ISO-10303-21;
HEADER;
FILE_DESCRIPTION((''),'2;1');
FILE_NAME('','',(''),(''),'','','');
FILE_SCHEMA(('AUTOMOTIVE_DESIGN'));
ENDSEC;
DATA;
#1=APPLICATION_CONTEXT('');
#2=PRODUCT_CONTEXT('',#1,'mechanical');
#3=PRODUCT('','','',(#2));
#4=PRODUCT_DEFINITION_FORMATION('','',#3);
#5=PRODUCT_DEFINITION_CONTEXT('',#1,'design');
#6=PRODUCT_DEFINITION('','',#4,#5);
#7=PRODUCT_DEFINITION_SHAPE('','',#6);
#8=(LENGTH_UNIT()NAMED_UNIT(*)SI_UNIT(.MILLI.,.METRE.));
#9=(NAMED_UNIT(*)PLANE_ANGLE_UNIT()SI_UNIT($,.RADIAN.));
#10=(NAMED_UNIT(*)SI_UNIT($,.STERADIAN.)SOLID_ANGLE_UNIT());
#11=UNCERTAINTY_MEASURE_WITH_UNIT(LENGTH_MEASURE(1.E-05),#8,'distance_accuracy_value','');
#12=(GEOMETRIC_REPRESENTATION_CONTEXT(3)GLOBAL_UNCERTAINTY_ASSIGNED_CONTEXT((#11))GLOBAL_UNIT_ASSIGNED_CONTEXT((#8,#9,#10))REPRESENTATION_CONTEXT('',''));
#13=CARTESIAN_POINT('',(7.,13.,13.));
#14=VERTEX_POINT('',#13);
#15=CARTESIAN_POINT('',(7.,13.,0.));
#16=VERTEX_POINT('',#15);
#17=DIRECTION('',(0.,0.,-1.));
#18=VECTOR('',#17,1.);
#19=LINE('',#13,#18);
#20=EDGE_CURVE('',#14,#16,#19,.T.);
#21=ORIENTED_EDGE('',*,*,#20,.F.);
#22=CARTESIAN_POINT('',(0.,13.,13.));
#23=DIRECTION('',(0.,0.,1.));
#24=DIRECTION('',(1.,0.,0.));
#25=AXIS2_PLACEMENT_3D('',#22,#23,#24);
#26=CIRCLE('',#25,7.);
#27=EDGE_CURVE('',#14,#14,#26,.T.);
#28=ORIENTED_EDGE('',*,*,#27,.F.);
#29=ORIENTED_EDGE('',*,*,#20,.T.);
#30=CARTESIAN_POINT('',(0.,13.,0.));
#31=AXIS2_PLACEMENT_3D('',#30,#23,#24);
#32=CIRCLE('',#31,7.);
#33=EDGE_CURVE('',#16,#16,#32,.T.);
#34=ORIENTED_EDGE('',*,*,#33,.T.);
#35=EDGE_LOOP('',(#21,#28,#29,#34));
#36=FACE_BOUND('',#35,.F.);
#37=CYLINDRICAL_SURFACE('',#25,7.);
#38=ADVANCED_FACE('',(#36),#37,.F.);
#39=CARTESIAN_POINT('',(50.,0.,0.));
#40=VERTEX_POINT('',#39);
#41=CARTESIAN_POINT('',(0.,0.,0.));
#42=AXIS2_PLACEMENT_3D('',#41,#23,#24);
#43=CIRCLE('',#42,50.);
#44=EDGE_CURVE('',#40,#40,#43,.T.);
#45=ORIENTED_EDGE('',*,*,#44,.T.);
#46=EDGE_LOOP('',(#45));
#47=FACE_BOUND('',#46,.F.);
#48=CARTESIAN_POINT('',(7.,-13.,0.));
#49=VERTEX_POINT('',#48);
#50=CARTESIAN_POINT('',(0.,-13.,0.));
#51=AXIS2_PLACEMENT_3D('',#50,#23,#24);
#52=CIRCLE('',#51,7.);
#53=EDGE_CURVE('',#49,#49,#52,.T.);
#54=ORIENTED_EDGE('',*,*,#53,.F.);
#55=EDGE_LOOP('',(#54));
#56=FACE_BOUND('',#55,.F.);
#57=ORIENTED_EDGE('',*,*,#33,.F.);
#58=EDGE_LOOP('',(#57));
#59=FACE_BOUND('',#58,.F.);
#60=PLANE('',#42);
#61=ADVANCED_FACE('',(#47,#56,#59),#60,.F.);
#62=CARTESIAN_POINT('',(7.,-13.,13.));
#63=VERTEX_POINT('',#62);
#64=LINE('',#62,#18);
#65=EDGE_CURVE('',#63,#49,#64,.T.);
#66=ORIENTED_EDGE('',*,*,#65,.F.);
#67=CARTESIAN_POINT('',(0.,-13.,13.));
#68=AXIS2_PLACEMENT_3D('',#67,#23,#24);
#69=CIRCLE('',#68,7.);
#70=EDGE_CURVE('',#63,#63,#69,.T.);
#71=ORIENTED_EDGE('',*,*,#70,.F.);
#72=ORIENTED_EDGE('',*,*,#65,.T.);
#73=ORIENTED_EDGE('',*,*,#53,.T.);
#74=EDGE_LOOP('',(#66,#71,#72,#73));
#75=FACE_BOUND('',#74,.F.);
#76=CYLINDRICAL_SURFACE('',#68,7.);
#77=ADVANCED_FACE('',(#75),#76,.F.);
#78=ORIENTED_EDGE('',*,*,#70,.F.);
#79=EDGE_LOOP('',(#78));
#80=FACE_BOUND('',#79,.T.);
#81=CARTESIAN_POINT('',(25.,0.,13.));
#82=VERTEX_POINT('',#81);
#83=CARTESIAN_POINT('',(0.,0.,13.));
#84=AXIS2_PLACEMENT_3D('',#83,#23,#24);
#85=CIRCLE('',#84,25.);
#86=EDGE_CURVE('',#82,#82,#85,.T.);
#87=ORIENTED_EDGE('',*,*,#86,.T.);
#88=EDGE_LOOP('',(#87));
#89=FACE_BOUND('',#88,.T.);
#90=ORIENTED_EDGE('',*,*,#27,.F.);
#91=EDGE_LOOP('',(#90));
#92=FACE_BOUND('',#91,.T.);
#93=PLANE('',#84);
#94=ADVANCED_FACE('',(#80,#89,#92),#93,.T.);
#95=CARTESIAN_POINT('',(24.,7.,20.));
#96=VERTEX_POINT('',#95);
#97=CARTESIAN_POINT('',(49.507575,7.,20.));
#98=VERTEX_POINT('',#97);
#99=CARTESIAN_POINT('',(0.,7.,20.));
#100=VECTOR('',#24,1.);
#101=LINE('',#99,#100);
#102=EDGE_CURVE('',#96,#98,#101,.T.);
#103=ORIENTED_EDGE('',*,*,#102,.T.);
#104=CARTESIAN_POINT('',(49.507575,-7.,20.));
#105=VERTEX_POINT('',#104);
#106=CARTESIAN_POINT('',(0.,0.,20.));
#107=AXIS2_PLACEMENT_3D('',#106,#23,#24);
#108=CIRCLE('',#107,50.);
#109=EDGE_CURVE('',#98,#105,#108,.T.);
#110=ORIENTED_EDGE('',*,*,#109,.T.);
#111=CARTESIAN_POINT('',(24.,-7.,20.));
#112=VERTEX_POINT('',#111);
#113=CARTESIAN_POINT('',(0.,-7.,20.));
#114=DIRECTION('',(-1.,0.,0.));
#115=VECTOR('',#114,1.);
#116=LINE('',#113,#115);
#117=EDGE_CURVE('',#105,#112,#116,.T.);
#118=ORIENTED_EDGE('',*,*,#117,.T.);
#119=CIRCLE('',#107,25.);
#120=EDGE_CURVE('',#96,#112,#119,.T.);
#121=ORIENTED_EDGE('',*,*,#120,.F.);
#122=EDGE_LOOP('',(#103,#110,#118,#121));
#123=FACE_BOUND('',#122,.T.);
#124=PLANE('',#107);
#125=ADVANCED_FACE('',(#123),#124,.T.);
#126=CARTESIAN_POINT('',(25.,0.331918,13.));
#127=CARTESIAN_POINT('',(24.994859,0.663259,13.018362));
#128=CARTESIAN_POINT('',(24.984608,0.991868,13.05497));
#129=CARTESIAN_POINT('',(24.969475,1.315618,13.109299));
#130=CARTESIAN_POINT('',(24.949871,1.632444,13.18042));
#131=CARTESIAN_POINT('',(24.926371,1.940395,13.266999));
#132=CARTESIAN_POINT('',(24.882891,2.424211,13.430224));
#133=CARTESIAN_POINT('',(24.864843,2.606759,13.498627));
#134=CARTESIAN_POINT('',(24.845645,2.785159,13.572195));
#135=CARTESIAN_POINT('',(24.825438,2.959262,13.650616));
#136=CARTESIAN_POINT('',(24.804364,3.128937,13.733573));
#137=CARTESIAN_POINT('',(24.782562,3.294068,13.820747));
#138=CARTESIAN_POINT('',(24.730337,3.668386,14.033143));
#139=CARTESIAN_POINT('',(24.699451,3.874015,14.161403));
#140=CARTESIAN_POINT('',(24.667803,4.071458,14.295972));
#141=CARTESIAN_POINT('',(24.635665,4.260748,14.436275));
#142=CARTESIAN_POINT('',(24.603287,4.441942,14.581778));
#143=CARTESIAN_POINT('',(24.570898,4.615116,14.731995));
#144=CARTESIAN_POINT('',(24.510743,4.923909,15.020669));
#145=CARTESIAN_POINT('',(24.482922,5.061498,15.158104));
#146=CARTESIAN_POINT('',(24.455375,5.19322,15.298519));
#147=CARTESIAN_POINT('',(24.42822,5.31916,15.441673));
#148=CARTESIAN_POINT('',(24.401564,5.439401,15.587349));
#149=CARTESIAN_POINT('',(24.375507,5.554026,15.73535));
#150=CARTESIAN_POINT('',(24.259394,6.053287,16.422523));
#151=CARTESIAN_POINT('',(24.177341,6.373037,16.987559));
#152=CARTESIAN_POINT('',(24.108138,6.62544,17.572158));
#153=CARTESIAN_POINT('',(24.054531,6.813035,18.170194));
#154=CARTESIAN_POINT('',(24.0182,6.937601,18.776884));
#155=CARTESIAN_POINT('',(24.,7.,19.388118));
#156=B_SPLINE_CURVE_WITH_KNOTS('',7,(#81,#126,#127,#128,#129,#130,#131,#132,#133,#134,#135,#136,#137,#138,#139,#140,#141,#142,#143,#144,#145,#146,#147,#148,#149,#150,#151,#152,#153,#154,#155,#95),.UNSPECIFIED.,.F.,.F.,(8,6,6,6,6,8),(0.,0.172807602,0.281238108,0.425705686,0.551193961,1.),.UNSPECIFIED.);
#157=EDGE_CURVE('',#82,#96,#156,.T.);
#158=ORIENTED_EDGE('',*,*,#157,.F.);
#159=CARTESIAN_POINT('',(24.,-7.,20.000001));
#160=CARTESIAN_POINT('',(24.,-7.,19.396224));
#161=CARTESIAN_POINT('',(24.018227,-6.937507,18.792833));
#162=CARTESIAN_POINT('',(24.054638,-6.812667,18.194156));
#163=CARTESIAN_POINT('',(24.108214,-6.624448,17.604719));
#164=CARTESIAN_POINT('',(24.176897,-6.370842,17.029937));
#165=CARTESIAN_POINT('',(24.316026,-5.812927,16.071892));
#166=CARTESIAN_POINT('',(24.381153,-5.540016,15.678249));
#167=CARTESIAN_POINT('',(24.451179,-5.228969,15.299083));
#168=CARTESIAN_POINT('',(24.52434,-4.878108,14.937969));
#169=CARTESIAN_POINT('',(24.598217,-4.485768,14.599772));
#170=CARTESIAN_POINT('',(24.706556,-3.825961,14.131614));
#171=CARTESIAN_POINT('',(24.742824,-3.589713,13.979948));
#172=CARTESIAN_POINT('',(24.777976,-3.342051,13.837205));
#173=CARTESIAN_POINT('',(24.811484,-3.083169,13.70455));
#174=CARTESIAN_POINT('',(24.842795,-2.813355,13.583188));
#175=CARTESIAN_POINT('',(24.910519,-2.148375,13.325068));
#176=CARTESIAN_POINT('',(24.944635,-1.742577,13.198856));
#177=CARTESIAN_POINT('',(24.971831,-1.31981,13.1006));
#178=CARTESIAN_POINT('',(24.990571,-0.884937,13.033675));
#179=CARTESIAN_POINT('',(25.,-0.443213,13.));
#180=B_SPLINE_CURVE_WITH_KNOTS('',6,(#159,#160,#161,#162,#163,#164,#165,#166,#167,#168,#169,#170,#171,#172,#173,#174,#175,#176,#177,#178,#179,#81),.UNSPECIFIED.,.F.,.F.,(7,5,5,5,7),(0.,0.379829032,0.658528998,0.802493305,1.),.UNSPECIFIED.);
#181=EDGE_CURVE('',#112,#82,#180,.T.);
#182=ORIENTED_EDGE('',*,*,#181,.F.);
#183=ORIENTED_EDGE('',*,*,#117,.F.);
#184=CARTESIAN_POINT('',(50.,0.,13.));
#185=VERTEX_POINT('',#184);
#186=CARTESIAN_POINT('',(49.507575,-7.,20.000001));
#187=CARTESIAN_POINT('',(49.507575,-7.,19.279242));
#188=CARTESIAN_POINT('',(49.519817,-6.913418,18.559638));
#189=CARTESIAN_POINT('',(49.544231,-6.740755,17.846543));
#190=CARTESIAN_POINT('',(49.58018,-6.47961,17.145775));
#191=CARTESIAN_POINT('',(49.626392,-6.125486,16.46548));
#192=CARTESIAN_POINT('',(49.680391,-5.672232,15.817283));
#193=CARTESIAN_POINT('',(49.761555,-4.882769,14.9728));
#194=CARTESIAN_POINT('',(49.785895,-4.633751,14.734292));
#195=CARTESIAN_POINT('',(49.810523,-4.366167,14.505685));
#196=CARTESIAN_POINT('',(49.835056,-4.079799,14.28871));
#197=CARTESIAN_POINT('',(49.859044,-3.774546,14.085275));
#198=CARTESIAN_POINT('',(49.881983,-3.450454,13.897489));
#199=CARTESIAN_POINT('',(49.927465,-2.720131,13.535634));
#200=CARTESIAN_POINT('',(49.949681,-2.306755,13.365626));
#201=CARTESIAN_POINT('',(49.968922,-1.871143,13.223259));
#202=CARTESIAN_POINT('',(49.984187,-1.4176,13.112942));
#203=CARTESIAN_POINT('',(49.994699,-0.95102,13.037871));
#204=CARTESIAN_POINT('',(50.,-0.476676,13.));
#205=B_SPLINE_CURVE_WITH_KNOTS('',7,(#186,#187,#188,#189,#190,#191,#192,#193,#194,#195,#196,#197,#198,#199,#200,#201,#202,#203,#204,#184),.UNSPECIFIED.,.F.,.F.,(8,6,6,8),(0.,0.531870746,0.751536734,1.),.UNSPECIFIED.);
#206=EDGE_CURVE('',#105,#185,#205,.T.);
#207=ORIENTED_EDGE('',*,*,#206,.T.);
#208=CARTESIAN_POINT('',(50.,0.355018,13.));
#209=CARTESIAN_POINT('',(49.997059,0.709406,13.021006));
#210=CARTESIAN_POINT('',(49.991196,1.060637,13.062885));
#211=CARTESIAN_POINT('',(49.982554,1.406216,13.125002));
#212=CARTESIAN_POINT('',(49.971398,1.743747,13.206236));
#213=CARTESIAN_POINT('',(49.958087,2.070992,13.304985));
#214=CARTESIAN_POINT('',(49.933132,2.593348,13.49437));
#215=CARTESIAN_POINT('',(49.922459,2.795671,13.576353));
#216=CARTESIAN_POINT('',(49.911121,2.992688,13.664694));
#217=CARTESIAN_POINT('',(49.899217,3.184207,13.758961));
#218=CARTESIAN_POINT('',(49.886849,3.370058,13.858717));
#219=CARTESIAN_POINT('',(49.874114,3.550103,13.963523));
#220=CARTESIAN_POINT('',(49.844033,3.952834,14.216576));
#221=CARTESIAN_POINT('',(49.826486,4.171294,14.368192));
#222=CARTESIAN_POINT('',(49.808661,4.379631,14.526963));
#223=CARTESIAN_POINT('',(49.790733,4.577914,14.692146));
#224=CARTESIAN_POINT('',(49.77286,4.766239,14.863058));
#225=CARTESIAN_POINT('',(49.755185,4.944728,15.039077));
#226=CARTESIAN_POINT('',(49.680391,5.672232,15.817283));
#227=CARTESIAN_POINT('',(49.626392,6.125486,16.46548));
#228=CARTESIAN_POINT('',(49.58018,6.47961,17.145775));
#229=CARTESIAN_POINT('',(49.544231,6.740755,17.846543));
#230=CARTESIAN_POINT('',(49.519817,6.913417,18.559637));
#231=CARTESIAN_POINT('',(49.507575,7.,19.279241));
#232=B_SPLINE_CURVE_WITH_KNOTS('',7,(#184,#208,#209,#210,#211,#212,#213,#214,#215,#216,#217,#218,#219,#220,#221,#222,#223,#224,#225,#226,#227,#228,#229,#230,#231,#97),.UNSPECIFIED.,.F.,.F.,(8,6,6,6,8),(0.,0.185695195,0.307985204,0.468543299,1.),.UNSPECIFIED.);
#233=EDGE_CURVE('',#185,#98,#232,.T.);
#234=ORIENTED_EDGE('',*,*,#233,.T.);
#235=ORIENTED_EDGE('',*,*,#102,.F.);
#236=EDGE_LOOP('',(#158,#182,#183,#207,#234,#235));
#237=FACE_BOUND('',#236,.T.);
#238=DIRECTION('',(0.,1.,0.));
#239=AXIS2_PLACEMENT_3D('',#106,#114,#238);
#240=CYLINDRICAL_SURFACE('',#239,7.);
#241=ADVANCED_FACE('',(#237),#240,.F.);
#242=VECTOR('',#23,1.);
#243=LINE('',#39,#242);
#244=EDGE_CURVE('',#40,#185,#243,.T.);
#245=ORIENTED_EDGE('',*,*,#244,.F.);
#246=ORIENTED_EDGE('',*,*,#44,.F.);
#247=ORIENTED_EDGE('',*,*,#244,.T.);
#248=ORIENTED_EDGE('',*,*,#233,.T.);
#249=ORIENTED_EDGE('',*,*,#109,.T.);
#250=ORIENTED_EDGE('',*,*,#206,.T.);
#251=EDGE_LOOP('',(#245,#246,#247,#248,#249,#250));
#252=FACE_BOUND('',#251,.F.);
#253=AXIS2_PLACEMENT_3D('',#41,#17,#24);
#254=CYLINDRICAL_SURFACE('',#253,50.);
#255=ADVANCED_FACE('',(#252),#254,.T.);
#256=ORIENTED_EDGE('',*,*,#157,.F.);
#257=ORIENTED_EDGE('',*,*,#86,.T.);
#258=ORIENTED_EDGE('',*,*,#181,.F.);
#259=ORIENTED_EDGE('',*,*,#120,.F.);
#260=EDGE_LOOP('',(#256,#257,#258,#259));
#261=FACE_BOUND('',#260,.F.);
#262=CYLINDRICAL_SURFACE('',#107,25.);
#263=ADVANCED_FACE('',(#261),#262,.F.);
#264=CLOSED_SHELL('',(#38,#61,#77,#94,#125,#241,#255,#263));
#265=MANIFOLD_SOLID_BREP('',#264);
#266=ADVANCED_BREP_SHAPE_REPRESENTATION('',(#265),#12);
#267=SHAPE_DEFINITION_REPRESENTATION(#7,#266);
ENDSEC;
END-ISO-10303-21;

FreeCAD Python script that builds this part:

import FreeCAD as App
import Part
import Sketcher
from FreeCAD import Vector

doc = App.newDocument("Part")
body = doc.addObject("PartDesign::Body", "Body")

sketch1 = body.newObject("Sketcher::SketchObject", "Sketch")
sketch1.AttachmentSupport = (doc.getObject("XY_Plane"), [""])
sketch1.MapMode = "FlatFace"
sketch1.addGeometry(Part.Circle(Vector(0, 0, 0), Vector(0, 0, 1), 50), False)
sketch1.addConstraint([
    Sketcher.Constraint("Coincident", 0, 3, -1, 1),
    Sketcher.Constraint("Diameter", 0, 100.0),
])
pad1 = body.newObject("PartDesign::Pad", "Pad")
pad1.Profile = sketch1
pad1.Length = 20

sketch2 = body.newObject("Sketcher::SketchObject", "Sketch001")
sketch2.AttachmentSupport = (doc.getObject("XY_Plane"), [""])
sketch2.MapMode = "FlatFace"
sketch2.AttachmentOffset = App.Placement(Vector(0, 0, 20), App.Rotation())
sketch2.addGeometry(Part.Circle(Vector(0, 0, 0), Vector(0, 0, 1), 25), False)
sketch2.addConstraint([
    Sketcher.Constraint("Coincident", 0, 3, -1, 1),
    Sketcher.Constraint("Diameter", 0, 50.0),
])
pocket1 = body.newObject("PartDesign::Pocket", "Pocket")
pocket1.Profile = sketch2
pocket1.Length = 7

sketch3 = body.newObject("Sketcher::SketchObject", "Sketch002")
sketch3.AttachmentSupport = (doc.getObject("YZ_Plane"), [""])
sketch3.MapMode = "FlatFace"
sketch3.addGeometry(Part.Circle(Vector(0, 20, 0), Vector(0, 0, 1), 7), False)
sketch3.addConstraint([
    Sketcher.Constraint("PointOnObject", 0, 3, -2),
    Sketcher.Constraint("Diameter", 0, 14.0),
    Sketcher.Constraint("DistanceY", -1, 1, 0, 3, 20.0),
])
pocket2 = body.newObject("PartDesign::Pocket", "Pocket001")
pocket2.Profile = sketch3
pocket2.Type = "ThroughAll"
pocket2.Reversed = True

sketch4 = body.newObject("Sketcher::SketchObject", "Sketch003")
sketch4.AttachmentSupport = (doc.getObject("XY_Plane"), [""])
sketch4.MapMode = "FlatFace"
sketch4.AttachmentOffset = App.Placement(Vector(0, 0, 13), App.Rotation())
sketch4.addGeometry([
    Part.Circle(Vector(0, 13, 0), Vector(0, 0, 1), 7),
    Part.Circle(Vector(0, -13, 0), Vector(0, 0, 1), 7),
], False)
sketch4.addConstraint([
    Sketcher.Constraint("Equal", 0, 1),
    Sketcher.Constraint("Symmetric", 0, 3, 1, 3, -1, 1),
    Sketcher.Constraint("PointOnObject", 0, 3, -2),
    Sketcher.Constraint("Diameter", 0, 14.0),
    Sketcher.Constraint("DistanceY", -1, 1, 0, 3, 13.0),
])
pocket3 = body.newObject("PartDesign::Pocket", "Pocket002")
pocket3.Profile = sketch4
pocket3.Length = 20

doc.recompute()
